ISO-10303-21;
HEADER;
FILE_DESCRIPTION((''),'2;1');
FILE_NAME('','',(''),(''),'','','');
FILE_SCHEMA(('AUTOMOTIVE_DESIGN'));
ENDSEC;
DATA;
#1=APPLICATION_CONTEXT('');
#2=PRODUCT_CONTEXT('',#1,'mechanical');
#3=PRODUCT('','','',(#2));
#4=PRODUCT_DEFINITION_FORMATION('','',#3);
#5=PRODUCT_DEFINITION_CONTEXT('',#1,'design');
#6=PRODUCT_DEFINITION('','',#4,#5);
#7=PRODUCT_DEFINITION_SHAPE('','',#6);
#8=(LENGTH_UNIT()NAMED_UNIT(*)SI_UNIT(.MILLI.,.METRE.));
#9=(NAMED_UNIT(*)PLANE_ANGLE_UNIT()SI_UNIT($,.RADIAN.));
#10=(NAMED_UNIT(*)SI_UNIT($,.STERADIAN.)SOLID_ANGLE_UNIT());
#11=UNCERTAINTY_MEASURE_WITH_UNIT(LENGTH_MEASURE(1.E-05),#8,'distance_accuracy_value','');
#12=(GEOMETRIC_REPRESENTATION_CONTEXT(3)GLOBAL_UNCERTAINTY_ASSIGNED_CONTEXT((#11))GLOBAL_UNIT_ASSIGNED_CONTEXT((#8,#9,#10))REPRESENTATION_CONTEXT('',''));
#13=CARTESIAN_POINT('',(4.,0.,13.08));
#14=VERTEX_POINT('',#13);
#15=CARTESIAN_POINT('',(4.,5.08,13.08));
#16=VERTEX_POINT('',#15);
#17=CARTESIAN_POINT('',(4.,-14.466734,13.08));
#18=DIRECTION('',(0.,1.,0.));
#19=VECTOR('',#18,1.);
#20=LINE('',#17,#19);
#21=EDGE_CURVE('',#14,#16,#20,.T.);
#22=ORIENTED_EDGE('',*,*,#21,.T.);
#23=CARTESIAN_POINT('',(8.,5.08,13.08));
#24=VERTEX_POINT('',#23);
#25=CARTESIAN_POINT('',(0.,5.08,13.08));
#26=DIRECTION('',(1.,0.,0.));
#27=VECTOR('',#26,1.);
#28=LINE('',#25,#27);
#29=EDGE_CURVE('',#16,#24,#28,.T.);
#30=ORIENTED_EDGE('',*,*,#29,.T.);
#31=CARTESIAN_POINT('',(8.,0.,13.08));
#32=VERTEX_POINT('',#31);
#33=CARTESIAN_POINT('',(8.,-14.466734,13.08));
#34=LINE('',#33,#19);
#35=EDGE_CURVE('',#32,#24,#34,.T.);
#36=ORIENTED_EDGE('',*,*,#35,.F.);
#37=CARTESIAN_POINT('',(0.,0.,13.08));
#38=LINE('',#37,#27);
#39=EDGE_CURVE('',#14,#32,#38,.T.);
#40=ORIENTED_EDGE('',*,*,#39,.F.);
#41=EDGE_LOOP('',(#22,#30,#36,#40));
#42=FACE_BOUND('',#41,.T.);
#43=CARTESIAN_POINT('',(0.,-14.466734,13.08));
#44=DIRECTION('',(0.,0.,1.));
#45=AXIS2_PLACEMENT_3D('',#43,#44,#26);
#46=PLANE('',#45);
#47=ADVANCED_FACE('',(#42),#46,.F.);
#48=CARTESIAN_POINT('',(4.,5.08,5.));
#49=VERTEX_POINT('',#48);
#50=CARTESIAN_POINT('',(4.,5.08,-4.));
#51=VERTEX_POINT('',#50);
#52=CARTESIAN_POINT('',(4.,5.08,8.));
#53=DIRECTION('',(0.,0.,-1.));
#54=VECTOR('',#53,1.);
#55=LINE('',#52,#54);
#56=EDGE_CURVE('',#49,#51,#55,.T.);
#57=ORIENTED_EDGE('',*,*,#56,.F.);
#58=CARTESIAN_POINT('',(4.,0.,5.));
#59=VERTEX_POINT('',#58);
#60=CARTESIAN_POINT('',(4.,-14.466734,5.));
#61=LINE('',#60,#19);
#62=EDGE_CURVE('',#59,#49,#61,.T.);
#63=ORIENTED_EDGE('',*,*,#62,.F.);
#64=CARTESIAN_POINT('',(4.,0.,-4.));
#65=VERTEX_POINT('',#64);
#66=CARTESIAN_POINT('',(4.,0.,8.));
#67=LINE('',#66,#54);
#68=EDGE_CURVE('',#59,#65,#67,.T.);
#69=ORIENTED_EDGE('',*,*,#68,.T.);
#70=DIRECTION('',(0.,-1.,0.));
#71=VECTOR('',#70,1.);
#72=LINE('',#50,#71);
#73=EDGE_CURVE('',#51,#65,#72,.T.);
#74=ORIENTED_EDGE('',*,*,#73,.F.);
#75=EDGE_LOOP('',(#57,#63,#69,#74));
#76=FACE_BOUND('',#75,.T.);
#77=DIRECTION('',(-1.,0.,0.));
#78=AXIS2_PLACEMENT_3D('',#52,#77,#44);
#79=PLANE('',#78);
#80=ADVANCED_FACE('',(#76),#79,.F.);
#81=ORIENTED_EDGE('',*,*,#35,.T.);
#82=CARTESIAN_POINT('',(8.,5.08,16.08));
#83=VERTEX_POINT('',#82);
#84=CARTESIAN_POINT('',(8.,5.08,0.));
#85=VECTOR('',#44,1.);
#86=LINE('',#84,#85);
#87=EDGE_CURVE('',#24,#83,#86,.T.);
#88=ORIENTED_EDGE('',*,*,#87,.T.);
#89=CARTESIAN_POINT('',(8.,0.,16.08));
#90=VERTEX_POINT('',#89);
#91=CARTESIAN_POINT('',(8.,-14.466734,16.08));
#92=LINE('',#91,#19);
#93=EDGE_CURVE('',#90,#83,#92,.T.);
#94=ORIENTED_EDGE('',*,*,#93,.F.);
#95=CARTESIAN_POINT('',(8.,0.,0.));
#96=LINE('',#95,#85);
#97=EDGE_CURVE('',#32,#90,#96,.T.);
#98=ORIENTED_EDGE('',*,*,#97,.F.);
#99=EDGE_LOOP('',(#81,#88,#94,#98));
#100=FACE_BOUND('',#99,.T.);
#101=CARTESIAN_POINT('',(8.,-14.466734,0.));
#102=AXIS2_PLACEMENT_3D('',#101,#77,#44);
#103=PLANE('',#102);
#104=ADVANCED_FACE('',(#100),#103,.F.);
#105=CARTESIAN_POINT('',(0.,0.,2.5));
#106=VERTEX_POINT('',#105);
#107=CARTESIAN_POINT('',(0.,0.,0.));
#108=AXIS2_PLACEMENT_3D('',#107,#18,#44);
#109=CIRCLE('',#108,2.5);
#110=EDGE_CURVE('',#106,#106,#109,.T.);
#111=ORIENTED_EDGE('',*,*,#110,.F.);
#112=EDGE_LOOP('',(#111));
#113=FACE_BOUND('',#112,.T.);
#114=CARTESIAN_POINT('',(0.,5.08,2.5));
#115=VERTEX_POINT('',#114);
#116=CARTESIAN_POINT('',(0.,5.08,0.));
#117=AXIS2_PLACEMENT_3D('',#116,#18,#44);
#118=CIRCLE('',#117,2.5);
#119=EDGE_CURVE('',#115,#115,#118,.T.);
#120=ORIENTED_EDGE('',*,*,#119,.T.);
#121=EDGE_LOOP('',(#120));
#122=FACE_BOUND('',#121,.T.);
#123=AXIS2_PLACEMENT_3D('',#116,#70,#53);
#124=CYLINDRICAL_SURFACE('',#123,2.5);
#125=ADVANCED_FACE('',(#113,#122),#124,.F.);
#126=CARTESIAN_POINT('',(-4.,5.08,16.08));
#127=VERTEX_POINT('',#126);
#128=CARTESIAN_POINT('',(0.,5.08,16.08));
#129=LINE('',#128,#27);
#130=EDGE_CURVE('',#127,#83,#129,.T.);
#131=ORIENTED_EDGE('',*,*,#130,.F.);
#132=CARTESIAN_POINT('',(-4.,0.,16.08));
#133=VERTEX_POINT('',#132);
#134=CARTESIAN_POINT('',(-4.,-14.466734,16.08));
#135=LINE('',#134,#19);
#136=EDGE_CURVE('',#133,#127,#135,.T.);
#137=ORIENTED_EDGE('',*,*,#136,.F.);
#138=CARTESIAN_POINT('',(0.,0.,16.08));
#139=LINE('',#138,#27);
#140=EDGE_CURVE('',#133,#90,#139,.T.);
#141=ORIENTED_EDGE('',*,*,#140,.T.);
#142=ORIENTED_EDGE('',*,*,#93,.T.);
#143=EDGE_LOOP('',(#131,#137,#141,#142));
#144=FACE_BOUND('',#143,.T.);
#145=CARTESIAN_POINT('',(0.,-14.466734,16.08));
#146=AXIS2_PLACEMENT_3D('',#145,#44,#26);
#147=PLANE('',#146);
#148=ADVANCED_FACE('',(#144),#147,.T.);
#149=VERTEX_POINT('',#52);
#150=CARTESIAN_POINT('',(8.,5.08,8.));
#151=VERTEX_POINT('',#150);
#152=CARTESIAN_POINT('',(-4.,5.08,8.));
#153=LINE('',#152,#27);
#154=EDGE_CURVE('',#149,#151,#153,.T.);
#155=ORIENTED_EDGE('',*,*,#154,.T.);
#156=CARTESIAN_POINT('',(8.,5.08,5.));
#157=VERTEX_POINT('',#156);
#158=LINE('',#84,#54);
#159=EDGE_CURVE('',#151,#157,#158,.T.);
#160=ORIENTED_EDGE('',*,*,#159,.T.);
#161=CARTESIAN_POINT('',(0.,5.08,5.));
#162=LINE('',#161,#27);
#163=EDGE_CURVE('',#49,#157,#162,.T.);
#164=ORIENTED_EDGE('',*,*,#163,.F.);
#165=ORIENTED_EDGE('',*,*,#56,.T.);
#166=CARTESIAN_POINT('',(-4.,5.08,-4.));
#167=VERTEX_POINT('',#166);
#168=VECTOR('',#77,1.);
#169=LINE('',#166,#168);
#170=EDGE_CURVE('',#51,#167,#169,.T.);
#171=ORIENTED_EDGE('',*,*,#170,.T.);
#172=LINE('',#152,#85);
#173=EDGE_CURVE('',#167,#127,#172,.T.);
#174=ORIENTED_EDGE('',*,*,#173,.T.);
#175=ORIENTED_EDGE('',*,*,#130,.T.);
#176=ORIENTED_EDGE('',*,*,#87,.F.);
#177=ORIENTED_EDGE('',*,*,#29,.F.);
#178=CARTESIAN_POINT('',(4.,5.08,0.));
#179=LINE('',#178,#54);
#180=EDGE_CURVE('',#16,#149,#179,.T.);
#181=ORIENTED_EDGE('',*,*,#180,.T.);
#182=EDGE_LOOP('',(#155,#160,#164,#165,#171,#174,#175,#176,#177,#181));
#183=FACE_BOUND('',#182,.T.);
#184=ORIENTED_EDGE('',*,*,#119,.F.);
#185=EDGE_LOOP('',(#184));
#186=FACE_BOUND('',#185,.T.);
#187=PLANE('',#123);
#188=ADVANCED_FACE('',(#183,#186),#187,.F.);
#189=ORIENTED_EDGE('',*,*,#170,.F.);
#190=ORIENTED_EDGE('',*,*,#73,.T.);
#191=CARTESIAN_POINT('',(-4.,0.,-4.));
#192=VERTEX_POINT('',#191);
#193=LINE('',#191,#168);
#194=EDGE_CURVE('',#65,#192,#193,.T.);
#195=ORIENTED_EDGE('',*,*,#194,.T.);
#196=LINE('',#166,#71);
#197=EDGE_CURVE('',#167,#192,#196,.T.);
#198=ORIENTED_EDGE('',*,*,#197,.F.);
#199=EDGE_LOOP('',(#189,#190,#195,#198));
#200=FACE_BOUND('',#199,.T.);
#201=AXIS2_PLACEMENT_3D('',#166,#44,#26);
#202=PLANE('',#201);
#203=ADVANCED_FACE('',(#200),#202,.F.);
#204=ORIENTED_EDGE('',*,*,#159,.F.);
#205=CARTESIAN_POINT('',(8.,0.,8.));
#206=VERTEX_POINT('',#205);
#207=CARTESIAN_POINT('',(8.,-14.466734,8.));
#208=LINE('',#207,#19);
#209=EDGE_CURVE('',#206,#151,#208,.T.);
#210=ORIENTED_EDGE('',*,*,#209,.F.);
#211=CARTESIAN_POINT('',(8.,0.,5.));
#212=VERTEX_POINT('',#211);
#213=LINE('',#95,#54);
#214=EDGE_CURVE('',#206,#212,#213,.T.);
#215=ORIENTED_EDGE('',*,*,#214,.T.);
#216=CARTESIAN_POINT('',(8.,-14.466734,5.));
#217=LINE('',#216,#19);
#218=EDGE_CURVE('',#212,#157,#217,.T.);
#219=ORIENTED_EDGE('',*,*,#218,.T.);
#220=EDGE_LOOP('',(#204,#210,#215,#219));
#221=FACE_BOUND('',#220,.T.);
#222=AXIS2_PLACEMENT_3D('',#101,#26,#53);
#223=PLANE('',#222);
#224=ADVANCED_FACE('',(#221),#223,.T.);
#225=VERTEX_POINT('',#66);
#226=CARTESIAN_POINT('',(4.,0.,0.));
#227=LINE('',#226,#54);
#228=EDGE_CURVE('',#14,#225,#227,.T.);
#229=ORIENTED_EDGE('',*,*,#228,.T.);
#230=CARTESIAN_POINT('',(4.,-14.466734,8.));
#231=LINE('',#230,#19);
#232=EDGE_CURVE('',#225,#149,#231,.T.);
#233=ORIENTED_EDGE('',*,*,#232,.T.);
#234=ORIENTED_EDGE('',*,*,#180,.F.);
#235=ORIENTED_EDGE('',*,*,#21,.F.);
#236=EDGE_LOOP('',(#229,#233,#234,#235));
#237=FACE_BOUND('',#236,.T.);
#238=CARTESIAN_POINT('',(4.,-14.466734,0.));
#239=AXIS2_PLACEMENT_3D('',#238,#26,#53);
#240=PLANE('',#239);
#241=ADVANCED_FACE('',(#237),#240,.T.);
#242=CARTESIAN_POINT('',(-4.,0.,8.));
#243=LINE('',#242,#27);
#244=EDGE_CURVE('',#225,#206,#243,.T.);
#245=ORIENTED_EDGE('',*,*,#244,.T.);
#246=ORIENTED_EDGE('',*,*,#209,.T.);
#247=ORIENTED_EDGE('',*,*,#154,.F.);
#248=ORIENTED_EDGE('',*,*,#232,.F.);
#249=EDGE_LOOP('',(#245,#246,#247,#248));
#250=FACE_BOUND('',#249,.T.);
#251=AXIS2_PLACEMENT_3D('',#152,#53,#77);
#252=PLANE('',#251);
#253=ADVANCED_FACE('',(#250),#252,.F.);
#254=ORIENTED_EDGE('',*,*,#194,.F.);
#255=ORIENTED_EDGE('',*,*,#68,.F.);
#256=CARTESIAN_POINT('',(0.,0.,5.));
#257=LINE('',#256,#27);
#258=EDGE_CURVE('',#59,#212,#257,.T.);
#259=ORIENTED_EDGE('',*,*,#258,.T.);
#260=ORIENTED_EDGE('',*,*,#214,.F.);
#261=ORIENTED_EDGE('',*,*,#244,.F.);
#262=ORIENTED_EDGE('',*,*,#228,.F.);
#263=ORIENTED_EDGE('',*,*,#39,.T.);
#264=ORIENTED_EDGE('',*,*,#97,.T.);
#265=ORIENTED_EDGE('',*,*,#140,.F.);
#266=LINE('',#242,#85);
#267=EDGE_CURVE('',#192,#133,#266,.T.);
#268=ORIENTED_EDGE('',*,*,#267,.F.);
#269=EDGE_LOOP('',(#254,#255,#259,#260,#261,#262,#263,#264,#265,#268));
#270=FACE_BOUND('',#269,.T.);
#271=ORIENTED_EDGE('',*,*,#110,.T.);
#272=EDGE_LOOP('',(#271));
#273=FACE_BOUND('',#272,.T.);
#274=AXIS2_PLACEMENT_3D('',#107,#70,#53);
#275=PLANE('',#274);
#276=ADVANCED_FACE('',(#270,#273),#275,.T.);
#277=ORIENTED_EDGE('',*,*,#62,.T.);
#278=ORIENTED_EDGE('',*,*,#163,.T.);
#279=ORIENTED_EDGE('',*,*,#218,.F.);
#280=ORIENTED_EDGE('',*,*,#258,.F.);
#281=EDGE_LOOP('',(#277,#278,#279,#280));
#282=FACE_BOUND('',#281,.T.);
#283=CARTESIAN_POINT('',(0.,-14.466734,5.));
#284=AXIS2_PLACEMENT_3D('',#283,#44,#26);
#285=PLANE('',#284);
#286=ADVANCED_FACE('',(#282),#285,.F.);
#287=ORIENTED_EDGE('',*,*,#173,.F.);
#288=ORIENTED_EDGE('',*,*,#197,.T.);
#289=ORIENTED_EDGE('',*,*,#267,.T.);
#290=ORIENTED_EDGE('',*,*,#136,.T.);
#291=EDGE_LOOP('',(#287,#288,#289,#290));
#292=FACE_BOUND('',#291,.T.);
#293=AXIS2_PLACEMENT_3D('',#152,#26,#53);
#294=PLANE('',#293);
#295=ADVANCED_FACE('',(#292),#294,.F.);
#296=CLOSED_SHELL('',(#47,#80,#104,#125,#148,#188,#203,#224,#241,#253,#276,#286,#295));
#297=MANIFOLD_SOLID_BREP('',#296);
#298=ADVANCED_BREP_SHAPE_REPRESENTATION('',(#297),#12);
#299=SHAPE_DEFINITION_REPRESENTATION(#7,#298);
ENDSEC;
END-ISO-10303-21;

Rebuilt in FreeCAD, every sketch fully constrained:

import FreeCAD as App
import Part
import Sketcher
Q = App.Units.Quantity


def add_polygon(sketch, points):
    """Adds a closed chain of lines whose ends are joined by coincident constraints."""
    first, n = sketch.GeometryCount, len(points)
    for a, b in zip(points, points[1:] + points[:1]):
        sketch.addGeometry(Part.LineSegment(App.Vector(*a, 0), App.Vector(*b, 0)), False)
    for i in range(n):
        sketch.addConstraint(Sketcher.Constraint("Coincident", first + i, 2, first + (i + 1) % n, 1))

doc = App.newDocument("Part")
body = doc.addObject("PartDesign::Body", "Body")

sketch1 = doc.addObject("Sketcher::SketchObject", "Sketch")
body.addObject(sketch1)
sketch1.AttachmentSupport = (doc.XZ_Plane, [""])
sketch1.MapMode = "FlatFace"
add_polygon(sketch1, [(-4, -4), (-4, 8), (4, 8), (4, -4)])
sketch1.addGeometry(Part.Circle(App.Vector(0, 0, 0), App.Vector(0, 0, 1), 2.5), False)
sketch1.addConstraint(Sketcher.Constraint("Vertical", 0))
sketch1.addConstraint(Sketcher.Constraint("Horizontal", 1))
sketch1.addConstraint(Sketcher.Constraint("Vertical", 2))
sketch1.addConstraint(Sketcher.Constraint("Horizontal", 3))
sketch1.addConstraint(Sketcher.Constraint("Coincident", 4, 3, -1, 1))
sketch1.addConstraint(Sketcher.Constraint("Diameter", 4, Q("5 mm")))
sketch1.addConstraint(Sketcher.Constraint("DistanceX", 1, 1, 1, 2, Q("8 mm")))
sketch1.addConstraint(Sketcher.Constraint("DistanceY", 0, 1, 0, 2, Q("12 mm")))
sketch1.addConstraint(Sketcher.Constraint("DistanceX", 0, 2, -1, 1, Q("4 mm")))
sketch1.addConstraint(Sketcher.Constraint("DistanceY", -1, 1, 0, 2, Q("8 mm")))
pad1 = doc.addObject("PartDesign::Pad", "Pad")
body.addObject(pad1)
pad1.Profile = sketch1
pad1.Length = 5.08
pad1.Reversed = True

sketch2 = doc.addObject("Sketcher::SketchObject", "Sketch001")
body.addObject(sketch2)
sketch2.AttachmentSupport = (doc.XZ_Plane, [""])
sketch2.MapMode = "FlatFace"
sketch2.AttachmentOffset = App.Placement(App.Vector(0, 0, -5.08), App.Rotation())
add_polygon(sketch2, [(4, 5), (4, 8), (8, 8), (8, 5)])
add_polygon(sketch2, [(-4, 8), (-4, 16.1), (8, 16.1), (8, 13.1), (4, 13.1), (4, 8)])
sketch2.addConstraint(Sketcher.Constraint("Vertical", 0))
sketch2.addConstraint(Sketcher.Constraint("Horizontal", 1))
sketch2.addConstraint(Sketcher.Constraint("Vertical", 2))
sketch2.addConstraint(Sketcher.Constraint("Horizontal", 3))
sketch2.addConstraint(Sketcher.Constraint("Vertical", 4))
sketch2.addConstraint(Sketcher.Constraint("Horizontal", 5))
sketch2.addConstraint(Sketcher.Constraint("Vertical", 6))
sketch2.addConstraint(Sketcher.Constraint("Horizontal", 7))
sketch2.addConstraint(Sketcher.Constraint("Vertical", 8))
sketch2.addConstraint(Sketcher.Constraint("Horizontal", 9))
sketch2.addConstraint(Sketcher.Constraint("Coincident", 8, 2, 0, 2))
sketch2.addConstraint(Sketcher.Constraint("Vertical", 2, 2, 5, 2))
sketch2.addConstraint(Sketcher.Constraint("Equal", 2, 6))
sketch2.addConstraint(Sketcher.Constraint("DistanceX", 1, 1, 1, 2, Q("4 mm")))
sketch2.addConstraint(Sketcher.Constraint("DistanceX", 5, 1, 5, 2, Q("12 mm")))
sketch2.addConstraint(Sketcher.Constraint("DistanceY", 0, 1, 0, 2, Q("3 mm")))
sketch2.addConstraint(Sketcher.Constraint("DistanceX", -1, 1, 0, 2, Q("4 mm")))
sketch2.addConstraint(Sketcher.Constraint("DistanceY", -1, 1, 0, 2, Q("8 mm")))
sketch2.addConstraint(Sketcher.Constraint("DistanceY", 4, 1, 4, 2, Q("8.08 mm")))
pad2 = doc.addObject("PartDesign::Pad", "Pad001")
body.addObject(pad2)
pad2.Profile = sketch2
pad2.Length = 5.08

doc.recompute()
